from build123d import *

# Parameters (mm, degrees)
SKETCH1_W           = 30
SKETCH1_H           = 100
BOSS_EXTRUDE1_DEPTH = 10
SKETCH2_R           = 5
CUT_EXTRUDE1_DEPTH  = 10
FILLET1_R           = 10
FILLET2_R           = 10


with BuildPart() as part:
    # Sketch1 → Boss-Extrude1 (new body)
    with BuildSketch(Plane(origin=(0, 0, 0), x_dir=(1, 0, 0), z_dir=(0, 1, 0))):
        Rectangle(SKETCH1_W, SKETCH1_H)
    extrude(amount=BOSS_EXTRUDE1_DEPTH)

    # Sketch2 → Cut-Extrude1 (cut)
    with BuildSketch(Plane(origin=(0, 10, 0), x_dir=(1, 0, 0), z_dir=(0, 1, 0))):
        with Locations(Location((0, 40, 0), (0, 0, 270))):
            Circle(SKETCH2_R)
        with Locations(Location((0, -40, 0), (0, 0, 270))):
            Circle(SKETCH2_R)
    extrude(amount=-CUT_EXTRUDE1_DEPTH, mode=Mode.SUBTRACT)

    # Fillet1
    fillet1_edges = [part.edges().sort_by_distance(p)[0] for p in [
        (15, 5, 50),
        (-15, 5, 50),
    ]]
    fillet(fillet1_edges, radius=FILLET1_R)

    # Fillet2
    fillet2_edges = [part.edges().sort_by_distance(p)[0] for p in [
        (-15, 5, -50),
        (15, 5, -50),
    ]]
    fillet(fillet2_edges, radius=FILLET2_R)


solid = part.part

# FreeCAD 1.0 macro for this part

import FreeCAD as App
import Part
import Sketcher
from FreeCAD import Vector


def edges_at(feature, points):
    """Names of the edges that pass closest to the given points."""
    edges = feature.Shape.Edges
    near = lambda p: min(range(len(edges)), key=lambda i: edges[i].distToShape(Part.Vertex(*p))[0])
    return sorted({f"Edge{near(p) + 1}" for p in points})


def add_polygon(sketch, points):
    """Adds a closed chain of lines whose ends are joined by coincident constraints."""
    first, n = sketch.GeometryCount, len(points)
    for a, b in zip(points, points[1:] + points[:1]):
        sketch.addGeometry(Part.LineSegment(App.Vector(*a, 0), App.Vector(*b, 0)), False)
    for i in range(n):
        sketch.addConstraint(Sketcher.Constraint("Coincident", first + i, 2, first + (i + 1) % n, 1))

doc = App.newDocument("Part")
body = doc.addObject("PartDesign::Body", "Body")

# Sketch on XZ plane
sketch1 = doc.addObject("Sketcher::SketchObject", "Sketch")
body.addObject(sketch1)
sketch1.AttachmentSupport = (doc.XZ_Plane, [""])
sketch1.MapMode = "FlatFace"
add_polygon(sketch1, [(-15, -50), (-15, 50), (15, 50), (15, -50)])  # lines 0-3
sketch1.addConstraint([
    Sketcher.Constraint("Vertical", 0),
    Sketcher.Constraint("Horizontal", 1),
    Sketcher.Constraint("Vertical", 2),
    Sketcher.Constraint("Horizontal", 3),
    Sketcher.Constraint("Symmetric", 0, 2, 2, 2, -1, 1),
    Sketcher.Constraint("DistanceX", 1, 1, 1, 2, 30.0),
    Sketcher.Constraint("DistanceY", 0, 1, 0, 2, 100.0),
])
pad1 = doc.addObject("PartDesign::Pad", "Pad")
body.addObject(pad1)
pad1.Profile = sketch1
pad1.Length = 10
pad1.Reversed = True

# Sketch on XZ plane
sketch2 = doc.addObject("Sketcher::SketchObject", "Sketch001")
body.addObject(sketch2)
sketch2.AttachmentSupport = (doc.XZ_Plane, [""])
sketch2.MapMode = "FlatFace"
sketch2.AttachmentOffset = App.Placement(Vector(0, 0, -10), App.Rotation())
sketch2.addGeometry([
    Part.Circle(Vector(0, -40, 0), Vector(0, 0, 1), 5),
    Part.Circle(Vector(0, 40, 0), Vector(0, 0, 1), 5),
], False)
sketch2.addConstraint([
    Sketcher.Constraint("Equal", 0, 1),
    Sketcher.Constraint("Symmetric", 0, 3, 1, 3, -1, 1),
    Sketcher.Constraint("PointOnObject", 0, 3, -2),
    Sketcher.Constraint("Diameter", 0, 10.0),
    Sketcher.Constraint("DistanceY", 0, 3, -1, 1, 40.0),
])
pocket1 = doc.addObject("PartDesign::Pocket", "Pocket")
body.addObject(pocket1)
pocket1.Profile = sketch2
pocket1.Length = 10
pocket1.Reversed = True
doc.recompute()

fillet = doc.addObject("PartDesign::Fillet", "Fillet")
body.addObject(fillet)
fillet.Base = (pocket1, edges_at(pocket1, [(15, 5, 50), (-15, 5, 50)]))
fillet.Radius = 10
doc.recompute()

fillet2 = doc.addObject("PartDesign::Fillet", "Fillet001")
body.addObject(fillet2)
fillet2.Base = (fillet, edges_at(fillet, [(-15, 5, -50), (15, 5, -50)]))
fillet2.Radius = 10

doc.recompute()
